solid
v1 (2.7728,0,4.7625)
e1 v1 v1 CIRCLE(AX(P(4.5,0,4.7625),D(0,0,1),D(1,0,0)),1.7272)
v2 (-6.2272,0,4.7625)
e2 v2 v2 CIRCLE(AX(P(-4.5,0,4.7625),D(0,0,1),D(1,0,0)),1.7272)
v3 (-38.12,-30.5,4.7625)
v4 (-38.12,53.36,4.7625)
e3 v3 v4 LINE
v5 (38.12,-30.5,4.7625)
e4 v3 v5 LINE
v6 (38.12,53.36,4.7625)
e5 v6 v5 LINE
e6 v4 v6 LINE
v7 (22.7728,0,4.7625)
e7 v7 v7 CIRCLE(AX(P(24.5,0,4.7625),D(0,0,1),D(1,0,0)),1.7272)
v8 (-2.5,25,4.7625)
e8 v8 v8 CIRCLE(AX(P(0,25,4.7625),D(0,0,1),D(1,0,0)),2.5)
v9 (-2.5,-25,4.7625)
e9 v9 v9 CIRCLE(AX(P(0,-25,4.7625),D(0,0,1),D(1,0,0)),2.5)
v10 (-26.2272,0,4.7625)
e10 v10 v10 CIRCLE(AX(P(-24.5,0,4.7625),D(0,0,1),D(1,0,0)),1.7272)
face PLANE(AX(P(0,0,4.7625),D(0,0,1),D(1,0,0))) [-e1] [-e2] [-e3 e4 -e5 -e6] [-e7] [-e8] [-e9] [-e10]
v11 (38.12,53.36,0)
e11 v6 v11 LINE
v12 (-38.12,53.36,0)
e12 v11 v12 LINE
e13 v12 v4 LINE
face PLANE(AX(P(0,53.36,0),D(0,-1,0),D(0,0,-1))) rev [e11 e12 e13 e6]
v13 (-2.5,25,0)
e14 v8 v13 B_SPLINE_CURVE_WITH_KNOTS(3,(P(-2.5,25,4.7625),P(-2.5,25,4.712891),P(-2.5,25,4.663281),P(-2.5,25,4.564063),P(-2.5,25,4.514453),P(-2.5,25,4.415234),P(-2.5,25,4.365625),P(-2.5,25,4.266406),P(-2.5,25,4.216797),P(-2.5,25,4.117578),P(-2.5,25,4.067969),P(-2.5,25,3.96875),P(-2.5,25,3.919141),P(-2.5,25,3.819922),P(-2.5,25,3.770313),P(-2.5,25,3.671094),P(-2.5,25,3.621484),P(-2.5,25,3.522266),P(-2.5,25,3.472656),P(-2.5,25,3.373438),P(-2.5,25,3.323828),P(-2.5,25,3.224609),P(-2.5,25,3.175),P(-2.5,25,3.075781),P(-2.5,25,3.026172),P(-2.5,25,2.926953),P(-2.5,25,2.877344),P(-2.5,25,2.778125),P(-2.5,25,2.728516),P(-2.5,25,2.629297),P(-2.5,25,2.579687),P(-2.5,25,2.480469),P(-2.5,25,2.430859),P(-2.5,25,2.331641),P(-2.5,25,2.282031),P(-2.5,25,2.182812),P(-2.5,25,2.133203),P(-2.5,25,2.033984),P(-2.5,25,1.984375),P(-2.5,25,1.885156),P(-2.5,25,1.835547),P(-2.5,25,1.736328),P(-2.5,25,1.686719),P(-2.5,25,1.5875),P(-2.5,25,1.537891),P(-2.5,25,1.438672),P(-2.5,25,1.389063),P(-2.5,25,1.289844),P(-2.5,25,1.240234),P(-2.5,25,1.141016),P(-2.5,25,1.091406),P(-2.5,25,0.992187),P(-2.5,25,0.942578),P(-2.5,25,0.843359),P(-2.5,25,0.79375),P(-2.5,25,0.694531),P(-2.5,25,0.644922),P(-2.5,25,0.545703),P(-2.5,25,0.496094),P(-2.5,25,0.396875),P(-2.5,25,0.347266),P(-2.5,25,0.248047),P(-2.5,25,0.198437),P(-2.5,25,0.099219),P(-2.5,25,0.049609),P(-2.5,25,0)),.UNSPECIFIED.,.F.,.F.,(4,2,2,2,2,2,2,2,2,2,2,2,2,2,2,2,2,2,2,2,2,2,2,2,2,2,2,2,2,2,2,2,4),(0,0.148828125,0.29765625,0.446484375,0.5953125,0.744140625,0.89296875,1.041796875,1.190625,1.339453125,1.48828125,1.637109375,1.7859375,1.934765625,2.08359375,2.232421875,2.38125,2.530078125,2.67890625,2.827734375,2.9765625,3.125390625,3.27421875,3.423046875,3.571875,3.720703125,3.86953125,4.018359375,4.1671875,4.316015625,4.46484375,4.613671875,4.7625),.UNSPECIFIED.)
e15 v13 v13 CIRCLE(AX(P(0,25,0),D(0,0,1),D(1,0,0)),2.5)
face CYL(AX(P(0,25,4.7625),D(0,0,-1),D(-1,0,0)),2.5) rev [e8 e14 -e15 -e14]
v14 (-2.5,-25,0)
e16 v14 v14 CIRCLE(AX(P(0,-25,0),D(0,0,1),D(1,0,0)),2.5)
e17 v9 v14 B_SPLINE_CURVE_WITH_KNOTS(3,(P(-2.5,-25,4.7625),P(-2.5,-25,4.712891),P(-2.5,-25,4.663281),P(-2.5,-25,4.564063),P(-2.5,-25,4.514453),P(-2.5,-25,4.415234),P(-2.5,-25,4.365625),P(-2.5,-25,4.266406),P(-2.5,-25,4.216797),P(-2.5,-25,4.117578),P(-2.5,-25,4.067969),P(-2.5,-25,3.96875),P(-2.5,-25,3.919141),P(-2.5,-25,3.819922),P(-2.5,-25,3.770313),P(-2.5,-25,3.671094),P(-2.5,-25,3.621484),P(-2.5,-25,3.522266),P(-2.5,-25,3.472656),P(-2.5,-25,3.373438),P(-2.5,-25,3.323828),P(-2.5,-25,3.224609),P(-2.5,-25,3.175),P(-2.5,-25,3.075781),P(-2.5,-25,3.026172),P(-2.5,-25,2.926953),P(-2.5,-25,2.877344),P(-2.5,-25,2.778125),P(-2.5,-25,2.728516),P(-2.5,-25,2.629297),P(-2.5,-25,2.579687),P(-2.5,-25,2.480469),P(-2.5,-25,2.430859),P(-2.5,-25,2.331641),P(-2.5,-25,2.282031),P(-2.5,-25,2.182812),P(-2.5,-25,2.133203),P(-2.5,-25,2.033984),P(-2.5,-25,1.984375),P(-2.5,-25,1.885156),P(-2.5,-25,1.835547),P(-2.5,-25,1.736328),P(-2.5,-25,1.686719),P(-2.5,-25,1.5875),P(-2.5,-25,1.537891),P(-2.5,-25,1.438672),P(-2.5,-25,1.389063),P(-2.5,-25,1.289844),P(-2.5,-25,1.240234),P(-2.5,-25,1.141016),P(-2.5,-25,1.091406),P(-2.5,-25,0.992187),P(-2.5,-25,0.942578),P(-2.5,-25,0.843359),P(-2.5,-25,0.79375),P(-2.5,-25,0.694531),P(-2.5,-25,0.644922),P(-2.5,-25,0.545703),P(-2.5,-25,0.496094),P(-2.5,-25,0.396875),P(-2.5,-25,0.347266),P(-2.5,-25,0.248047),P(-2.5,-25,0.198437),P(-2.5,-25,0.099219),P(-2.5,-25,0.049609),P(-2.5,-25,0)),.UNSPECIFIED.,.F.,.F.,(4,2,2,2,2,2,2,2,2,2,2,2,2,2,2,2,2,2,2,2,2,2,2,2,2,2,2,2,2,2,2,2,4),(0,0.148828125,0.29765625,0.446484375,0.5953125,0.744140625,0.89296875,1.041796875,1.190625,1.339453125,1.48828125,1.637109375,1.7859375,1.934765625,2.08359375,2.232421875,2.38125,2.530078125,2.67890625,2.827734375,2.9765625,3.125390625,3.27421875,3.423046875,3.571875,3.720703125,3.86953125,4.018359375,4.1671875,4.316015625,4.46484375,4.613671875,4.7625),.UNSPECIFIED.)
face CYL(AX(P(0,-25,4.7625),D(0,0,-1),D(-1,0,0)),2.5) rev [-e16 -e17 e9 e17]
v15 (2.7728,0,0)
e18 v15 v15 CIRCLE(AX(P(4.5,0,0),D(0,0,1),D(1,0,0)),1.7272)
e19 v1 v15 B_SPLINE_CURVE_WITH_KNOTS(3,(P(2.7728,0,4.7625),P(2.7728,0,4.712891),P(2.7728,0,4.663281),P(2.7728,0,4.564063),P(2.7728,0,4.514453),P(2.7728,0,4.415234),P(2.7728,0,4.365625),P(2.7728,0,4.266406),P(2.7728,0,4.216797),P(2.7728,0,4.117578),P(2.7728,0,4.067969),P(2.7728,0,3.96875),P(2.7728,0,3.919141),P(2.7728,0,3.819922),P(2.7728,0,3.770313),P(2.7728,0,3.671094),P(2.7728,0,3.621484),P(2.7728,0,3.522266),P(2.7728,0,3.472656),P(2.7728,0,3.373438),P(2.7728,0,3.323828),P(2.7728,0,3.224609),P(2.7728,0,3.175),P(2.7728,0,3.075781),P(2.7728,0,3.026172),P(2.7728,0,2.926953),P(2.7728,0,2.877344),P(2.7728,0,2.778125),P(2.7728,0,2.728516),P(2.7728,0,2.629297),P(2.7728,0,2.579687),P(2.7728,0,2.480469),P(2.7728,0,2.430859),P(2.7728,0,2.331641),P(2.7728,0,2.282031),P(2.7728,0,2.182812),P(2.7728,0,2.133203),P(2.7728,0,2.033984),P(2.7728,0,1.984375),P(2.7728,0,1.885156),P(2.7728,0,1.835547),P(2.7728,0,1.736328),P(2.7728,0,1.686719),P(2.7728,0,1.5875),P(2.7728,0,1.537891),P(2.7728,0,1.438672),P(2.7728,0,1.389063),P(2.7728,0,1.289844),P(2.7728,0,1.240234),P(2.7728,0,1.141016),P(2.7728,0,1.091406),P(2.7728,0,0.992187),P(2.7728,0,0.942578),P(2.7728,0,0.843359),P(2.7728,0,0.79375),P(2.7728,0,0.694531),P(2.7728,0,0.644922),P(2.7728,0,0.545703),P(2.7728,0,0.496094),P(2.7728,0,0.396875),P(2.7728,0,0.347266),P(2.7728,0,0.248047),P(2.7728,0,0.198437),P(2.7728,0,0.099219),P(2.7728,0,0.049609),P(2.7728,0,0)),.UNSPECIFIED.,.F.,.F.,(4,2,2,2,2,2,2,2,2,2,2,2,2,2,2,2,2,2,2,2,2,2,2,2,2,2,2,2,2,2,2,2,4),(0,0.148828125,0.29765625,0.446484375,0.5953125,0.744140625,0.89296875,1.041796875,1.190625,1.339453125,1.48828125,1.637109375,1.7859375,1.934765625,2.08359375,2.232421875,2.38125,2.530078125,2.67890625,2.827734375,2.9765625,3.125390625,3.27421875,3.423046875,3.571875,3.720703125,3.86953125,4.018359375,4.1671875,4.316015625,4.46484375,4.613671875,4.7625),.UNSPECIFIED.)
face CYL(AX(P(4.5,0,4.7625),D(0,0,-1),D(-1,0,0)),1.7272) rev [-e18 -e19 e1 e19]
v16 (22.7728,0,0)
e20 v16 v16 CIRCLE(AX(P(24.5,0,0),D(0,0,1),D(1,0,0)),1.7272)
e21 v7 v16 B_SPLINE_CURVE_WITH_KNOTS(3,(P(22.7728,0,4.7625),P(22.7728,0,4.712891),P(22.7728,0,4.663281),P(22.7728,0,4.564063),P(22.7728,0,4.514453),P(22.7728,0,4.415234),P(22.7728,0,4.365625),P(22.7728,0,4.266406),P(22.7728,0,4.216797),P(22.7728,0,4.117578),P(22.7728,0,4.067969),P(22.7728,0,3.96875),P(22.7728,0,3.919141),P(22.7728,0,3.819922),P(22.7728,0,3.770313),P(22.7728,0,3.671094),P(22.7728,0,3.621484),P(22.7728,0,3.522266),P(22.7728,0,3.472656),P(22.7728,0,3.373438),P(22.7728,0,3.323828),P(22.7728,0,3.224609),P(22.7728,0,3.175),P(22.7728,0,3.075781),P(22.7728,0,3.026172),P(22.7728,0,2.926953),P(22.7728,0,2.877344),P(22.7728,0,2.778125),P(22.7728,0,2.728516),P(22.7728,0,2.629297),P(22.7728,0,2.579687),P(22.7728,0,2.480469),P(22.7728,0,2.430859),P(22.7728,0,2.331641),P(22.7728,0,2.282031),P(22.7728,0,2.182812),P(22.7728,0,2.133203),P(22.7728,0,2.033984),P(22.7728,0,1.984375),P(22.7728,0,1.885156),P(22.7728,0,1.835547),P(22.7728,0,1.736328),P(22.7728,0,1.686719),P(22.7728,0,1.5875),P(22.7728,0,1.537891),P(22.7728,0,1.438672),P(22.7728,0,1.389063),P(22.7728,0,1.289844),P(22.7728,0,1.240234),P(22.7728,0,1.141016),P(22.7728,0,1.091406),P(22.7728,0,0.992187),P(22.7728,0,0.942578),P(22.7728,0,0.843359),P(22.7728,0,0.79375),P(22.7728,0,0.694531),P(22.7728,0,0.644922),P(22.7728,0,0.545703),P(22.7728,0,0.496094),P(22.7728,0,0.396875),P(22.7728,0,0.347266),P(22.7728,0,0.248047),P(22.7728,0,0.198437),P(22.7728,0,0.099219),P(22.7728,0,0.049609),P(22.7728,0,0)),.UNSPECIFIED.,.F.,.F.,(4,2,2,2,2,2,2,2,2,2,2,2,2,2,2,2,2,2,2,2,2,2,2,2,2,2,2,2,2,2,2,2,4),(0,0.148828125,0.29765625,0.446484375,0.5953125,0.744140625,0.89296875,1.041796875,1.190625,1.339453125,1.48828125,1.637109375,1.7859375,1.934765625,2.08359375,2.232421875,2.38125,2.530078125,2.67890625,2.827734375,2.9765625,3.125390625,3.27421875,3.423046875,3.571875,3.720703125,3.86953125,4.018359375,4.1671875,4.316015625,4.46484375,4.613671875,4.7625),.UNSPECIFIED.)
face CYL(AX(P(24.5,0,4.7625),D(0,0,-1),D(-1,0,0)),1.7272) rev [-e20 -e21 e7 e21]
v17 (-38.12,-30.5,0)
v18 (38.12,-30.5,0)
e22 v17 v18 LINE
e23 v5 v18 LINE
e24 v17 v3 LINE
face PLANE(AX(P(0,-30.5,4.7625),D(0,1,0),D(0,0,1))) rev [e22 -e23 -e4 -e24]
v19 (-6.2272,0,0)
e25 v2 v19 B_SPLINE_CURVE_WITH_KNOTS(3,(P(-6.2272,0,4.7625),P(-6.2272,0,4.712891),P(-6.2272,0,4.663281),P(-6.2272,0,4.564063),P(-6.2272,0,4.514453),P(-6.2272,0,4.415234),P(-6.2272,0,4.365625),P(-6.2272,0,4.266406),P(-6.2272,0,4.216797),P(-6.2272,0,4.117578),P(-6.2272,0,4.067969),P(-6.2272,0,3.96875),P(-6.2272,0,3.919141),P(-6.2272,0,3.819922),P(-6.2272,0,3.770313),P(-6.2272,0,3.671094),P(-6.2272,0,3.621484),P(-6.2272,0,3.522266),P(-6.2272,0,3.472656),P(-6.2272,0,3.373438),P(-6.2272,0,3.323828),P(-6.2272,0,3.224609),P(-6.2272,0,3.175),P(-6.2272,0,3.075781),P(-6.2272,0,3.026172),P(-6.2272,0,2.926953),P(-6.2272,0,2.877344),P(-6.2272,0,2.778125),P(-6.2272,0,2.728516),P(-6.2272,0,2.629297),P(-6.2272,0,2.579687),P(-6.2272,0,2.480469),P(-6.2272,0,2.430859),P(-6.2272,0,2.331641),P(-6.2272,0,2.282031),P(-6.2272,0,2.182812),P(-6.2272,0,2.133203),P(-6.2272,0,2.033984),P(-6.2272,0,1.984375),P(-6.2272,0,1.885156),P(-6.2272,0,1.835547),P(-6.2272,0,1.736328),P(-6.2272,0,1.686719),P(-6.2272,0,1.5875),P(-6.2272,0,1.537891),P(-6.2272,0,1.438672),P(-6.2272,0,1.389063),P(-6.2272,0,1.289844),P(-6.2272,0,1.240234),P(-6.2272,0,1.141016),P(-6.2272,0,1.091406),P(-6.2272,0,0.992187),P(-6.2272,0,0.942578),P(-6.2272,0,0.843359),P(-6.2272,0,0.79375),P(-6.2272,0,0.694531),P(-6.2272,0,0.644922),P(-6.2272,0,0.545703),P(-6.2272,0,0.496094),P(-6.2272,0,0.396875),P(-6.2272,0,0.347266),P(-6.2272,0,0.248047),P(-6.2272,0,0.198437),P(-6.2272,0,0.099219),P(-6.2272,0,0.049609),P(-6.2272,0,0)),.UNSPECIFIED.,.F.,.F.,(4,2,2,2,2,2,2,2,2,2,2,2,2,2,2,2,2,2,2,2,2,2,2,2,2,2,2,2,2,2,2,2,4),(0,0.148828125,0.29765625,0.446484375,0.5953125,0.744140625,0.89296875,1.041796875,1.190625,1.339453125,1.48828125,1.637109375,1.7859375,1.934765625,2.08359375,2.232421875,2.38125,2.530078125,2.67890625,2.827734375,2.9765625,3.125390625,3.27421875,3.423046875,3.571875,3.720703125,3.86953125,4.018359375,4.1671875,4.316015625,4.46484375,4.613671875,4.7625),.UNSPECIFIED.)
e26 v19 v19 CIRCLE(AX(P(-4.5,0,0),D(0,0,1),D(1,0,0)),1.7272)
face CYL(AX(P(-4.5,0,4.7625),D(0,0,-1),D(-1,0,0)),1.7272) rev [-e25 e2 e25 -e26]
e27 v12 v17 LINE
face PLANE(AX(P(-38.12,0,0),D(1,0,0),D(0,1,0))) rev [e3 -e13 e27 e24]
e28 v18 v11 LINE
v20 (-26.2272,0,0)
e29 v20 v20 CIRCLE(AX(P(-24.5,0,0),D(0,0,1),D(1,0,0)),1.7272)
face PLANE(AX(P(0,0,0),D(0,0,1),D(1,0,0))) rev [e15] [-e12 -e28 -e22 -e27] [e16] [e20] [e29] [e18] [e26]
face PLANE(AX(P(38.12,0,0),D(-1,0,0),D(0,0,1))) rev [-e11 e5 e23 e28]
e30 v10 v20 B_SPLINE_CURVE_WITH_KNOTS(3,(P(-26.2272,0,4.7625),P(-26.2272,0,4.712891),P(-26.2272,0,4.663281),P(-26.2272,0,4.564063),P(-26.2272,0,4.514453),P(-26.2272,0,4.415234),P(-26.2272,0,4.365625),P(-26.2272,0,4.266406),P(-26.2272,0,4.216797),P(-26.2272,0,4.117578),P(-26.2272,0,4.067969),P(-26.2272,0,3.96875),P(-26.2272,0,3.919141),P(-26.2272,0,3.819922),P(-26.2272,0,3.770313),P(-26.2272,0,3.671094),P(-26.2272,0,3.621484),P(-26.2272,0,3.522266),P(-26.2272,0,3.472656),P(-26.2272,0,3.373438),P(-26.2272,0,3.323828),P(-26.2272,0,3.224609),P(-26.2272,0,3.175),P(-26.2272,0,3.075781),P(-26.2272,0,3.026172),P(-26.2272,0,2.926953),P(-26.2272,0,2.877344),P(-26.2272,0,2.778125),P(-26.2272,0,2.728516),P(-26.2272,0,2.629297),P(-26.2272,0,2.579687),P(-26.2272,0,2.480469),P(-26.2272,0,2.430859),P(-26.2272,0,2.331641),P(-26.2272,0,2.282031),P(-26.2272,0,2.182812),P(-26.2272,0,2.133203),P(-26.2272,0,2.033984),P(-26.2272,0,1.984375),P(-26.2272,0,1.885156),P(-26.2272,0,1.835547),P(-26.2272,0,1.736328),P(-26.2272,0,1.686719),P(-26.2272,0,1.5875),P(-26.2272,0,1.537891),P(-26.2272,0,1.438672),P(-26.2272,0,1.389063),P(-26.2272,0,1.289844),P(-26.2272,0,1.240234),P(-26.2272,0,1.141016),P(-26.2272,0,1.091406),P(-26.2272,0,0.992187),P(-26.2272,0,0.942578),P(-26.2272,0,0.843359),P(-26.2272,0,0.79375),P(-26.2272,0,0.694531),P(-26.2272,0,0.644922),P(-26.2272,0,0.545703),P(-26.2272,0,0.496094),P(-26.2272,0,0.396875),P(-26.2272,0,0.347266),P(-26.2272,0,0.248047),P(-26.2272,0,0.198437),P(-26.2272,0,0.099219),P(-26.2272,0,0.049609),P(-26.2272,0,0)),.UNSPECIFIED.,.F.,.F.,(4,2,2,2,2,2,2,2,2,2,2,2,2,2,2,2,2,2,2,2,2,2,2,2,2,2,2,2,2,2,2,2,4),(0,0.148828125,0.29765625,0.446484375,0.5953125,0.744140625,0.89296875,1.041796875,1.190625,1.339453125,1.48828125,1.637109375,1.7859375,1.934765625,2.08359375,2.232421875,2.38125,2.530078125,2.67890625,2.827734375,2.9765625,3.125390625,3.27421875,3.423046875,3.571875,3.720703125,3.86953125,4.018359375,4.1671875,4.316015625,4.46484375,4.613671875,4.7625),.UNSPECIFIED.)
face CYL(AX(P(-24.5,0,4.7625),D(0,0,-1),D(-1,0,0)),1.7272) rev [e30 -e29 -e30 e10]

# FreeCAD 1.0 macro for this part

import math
import FreeCAD as App
import Part
import Sketcher
from FreeCAD import Vector
Q = App.Units.Quantity

doc = App.newDocument("Part")
body = doc.addObject("PartDesign::Body", "Body")

# Sketch on XY plane
sketch1 = body.newObject("Sketcher::SketchObject", "Sketch")
sketch1.AttachmentSupport = (doc.getObject("XY_Plane"), [""])
sketch1.MapMode = "FlatFace"
sketch1.addGeometry([
    Part.LineSegment(Vector(30.5, -30.5, 0), Vector(30.5, 30.5, 0)),  # 0
    Part.LineSegment(Vector(30.5, 30.5, 0), Vector(-30.5, 30.5, 0)),  # 1
    Part.LineSegment(Vector(-30.5, 30.5, 0), Vector(-30.5, -30.5, 0)),  # 2
    Part.LineSegment(Vector(-30.5, -30.5, 0), Vector(30.5, -30.5, 0)),  # 3
    Part.ArcOfCircle(Part.Circle(Vector(0, -25, 0), Vector(0, 0, 1), 2.5), math.radians(90), math.radians(270)),  # 4
    Part.ArcOfCircle(Part.Circle(Vector(0, -25, 0), Vector(0, 0, 1), 2.5), math.radians(0), math.radians(90)),  # 5
    Part.ArcOfCircle(Part.Circle(Vector(0, -25, 0), Vector(0, 0, 1), 2.5), math.radians(-90), math.radians(0)),  # 6
    Part.Circle(Vector(-24.5, 0, 0), Vector(0, 0, 1), 1.7272),  # 7
    Part.ArcOfCircle(Part.Circle(Vector(-4.5, 0, 0), Vector(0, 0, 1), 1.7272), math.radians(109.621413), math.radians(180)),  # 8
    Part.ArcOfCircle(Part.Circle(Vector(-4.5, 0, 0), Vector(0, 0, 1), 1.7272), math.radians(0), math.radians(109.621413)),  # 9
    Part.ArcOfCircle(Part.Circle(Vector(-4.5, 0, 0), Vector(0, 0, 1), 1.7272), math.radians(-109.621413), math.radians(0)),  # 10
    Part.ArcOfCircle(Part.Circle(Vector(-4.5, 0, 0), Vector(0, 0, 1), 1.7272), math.radians(180), math.radians(250.378587)),  # 11
    Part.ArcOfCircle(Part.Circle(Vector(0, 25, 0), Vector(0, 0, 1), 2.5), math.radians(90), math.radians(270)),  # 12
    Part.ArcOfCircle(Part.Circle(Vector(0, 25, 0), Vector(0, 0, 1), 2.5), math.radians(0), math.radians(90)),  # 13
    Part.ArcOfCircle(Part.Circle(Vector(0, 25, 0), Vector(0, 0, 1), 2.5), math.radians(-90), math.radians(0)),  # 14
    Part.ArcOfCircle(Part.Circle(Vector(4.5, 0, 0), Vector(0, 0, 1), 1.7272), math.radians(70.378587), math.radians(180)),  # 15
    Part.ArcOfCircle(Part.Circle(Vector(4.5, 0, 0), Vector(0, 0, 1), 1.7272), math.radians(0), math.radians(70.378587)),  # 16
    Part.ArcOfCircle(Part.Circle(Vector(4.5, 0, 0), Vector(0, 0, 1), 1.7272), math.radians(-70.378587), math.radians(0)),  # 17
    Part.ArcOfCircle(Part.Circle(Vector(4.5, 0, 0), Vector(0, 0, 1), 1.7272), math.radians(180), math.radians(289.621413)),  # 18
    Part.Circle(Vector(24.5, 0, 0), Vector(0, 0, 1), 1.7272),  # 19
], False)
sketch1.addConstraint([
    Sketcher.Constraint("Coincident", 0, 2, 1, 1),
    Sketcher.Constraint("Coincident", 1, 2, 2, 1),
    Sketcher.Constraint("Coincident", 2, 2, 3, 1),
    Sketcher.Constraint("Coincident", 3, 2, 0, 1),
    Sketcher.Constraint("Tangent", 4, 1, 5, 2),
    Sketcher.Constraint("Tangent", 5, 1, 6, 2),
    Sketcher.Constraint("Tangent", 6, 1, 4, 2),
    Sketcher.Constraint("Tangent", 8, 1, 9, 2),
    Sketcher.Constraint("Tangent", 9, 1, 10, 2),
    Sketcher.Constraint("Tangent", 10, 1, 11, 2),
    Sketcher.Constraint("Tangent", 11, 1, 8, 2),
    Sketcher.Constraint("Tangent", 12, 1, 13, 2),
    Sketcher.Constraint("Tangent", 13, 1, 14, 2),
    Sketcher.Constraint("Tangent", 14, 1, 12, 2),
    Sketcher.Constraint("Tangent", 15, 1, 16, 2),
    Sketcher.Constraint("Tangent", 16, 1, 17, 2),
    Sketcher.Constraint("Tangent", 17, 1, 18, 2),
    Sketcher.Constraint("Tangent", 18, 1, 15, 2),
    Sketcher.Constraint("Vertical", 0),
    Sketcher.Constraint("Horizontal", 1),
    Sketcher.Constraint("Vertical", 2),
    Sketcher.Constraint("Horizontal", 3),
    Sketcher.Constraint("Equal", 7, 8),
    Sketcher.Constraint("Equal", 8, 9),
    Sketcher.Constraint("Equal", 6, 12),
    Sketcher.Constraint("Equal", 11, 15),
    Sketcher.Constraint("Equal", 15, 16),
    Sketcher.Constraint("Equal", 18, 19),
    Sketcher.Constraint("Symmetric", 4, 3, 12, 3, -1, 1),
    Sketcher.Constraint("Symmetric", 8, 3, 15, 3, -1, 1),
    Sketcher.Constraint("Symmetric", 7, 3, 19, 3, -1, 1),
    Sketcher.Constraint("Symmetric", 0, 2, 2, 2, -1, 1),
    Sketcher.Constraint("Symmetric", 8, 1, 15, 1, -2),
    Sketcher.Constraint("Symmetric", 5, 1, 13, 1, -1),
    Sketcher.Constraint("PointOnObject", 7, 3, -1),
    Sketcher.Constraint("PointOnObject", 4, 1, -2),
    Sketcher.Constraint("PointOnObject", 6, 1, -2),
    Sketcher.Constraint("PointOnObject", 9, 1, -1),
    Sketcher.Constraint("PointOnObject", 11, 1, -1),
    Sketcher.Constraint("PointOnObject", 12, 1, -2),
    Sketcher.Constraint("PointOnObject", 14, 1, -2),
    Sketcher.Constraint("PointOnObject", 16, 1, -1),
    Sketcher.Constraint("PointOnObject", 18, 1, -1),
    Sketcher.Constraint("Horizontal", 6, 3, 5, 1),
    Sketcher.Constraint("Horizontal", 10, 1, 17, 1),
    Sketcher.Constraint("Vertical", 8, 1, 10, 1),
    Sketcher.Constraint("Equal", 3, 0),
    Sketcher.Constraint("Diameter", 7, Q("0.136 in")),
    Sketcher.Constraint("DistanceX", 8, 1, -1, 1, Q("0.2 in")),
    Sketcher.Constraint("Radius", 4, Q("2.5 mm")),
    Sketcher.Constraint("DistanceX", 1, 2, 1, 1, Q("61 mm")),
    Sketcher.Constraint("DistanceY", 4, 3, -1, 1, Q("25 mm")),
    Sketcher.Constraint("DistanceX", 7, 3, -1, 1, Q("24.5 mm")),
    Sketcher.Constraint("DistanceX", 8, 3, -1, 1, Q("4.5 mm")),
])
pad1 = body.newObject("PartDesign::Pad", "Pad")
pad1.Profile = sketch1
pad1.Length = Q("0.1875 in")

# Sketch on YZ plane
sketch2 = body.newObject("Sketcher::SketchObject", "Sketch001")
sketch2.AttachmentSupport = (doc.getObject("YZ_Plane"), [""])
sketch2.MapMode = "FlatFace"
sketch2.AttachmentOffset = App.Placement(Vector(0, 0, -30.5), App.Rotation())
sketch2.addGeometry([
    Part.LineSegment(Vector(30.5, 0, 0), Vector(-30.5, 0, 0)),
    Part.LineSegment(Vector(-30.5, 0, 0), Vector(-30.5, 4.7625, 0)),
    Part.LineSegment(Vector(-30.5, 4.7625, 0), Vector(30.5, 4.7625, 0)),
    Part.LineSegment(Vector(30.5, 4.7625, 0), Vector(30.5, 0, 0)),
], False)
sketch2.addConstraint([
    Sketcher.Constraint("Coincident", 0, 2, 1, 1),
    Sketcher.Constraint("Coincident", 1, 2, 2, 1),
    Sketcher.Constraint("Coincident", 2, 2, 3, 1),
    Sketcher.Constraint("Coincident", 3, 2, 0, 1),
    Sketcher.Constraint("Horizontal", 0),
    Sketcher.Constraint("Vertical", 1),
    Sketcher.Constraint("Horizontal", 2),
    Sketcher.Constraint("Vertical", 3),
    Sketcher.Constraint("Symmetric", 0, 2, 3, 2, -1, 1),
    Sketcher.Constraint("DistanceY", 1, 1, 1, 2, Q("0.1875 in")),
    Sketcher.Constraint("DistanceX", 0, 2, 0, 1, Q("61 mm")),
])
pad2 = body.newObject("PartDesign::Pad", "Pad001")
pad2.Profile = sketch2
pad2.Length = Q("0.3 in")
pad2.Reversed = True

# Sketch on YZ plane
sketch3 = body.newObject("Sketcher::SketchObject", "Sketch002")
sketch3.AttachmentSupport = (doc.getObject("YZ_Plane"), [""])
sketch3.MapMode = "FlatFace"
sketch3.AttachmentOffset = App.Placement(Vector(0, 0, 30.5), App.Rotation())
sketch3.addGeometry([
    Part.LineSegment(Vector(30.5, 4.7625, 0), Vector(-30.5, 4.7625, 0)),
    Part.LineSegment(Vector(-30.5, 4.7625, 0), Vector(-30.5, 0, 0)),
    Part.LineSegment(Vector(-30.5, 0, 0), Vector(30.5, 0, 0)),
    Part.LineSegment(Vector(30.5, 0, 0), Vector(30.5, 4.7625, 0)),
], False)
sketch3.addConstraint([
    Sketcher.Constraint("Coincident", 0, 2, 1, 1),
    Sketcher.Constraint("Coincident", 1, 2, 2, 1),
    Sketcher.Constraint("Coincident", 2, 2, 3, 1),
    Sketcher.Constraint("Coincident", 3, 2, 0, 1),
    Sketcher.Constraint("Horizontal", 0),
    Sketcher.Constraint("Vertical", 1),
    Sketcher.Constraint("Horizontal", 2),
    Sketcher.Constraint("Vertical", 3),
    Sketcher.Constraint("Symmetric", 1, 2, 2, 2, -1, 1),
    Sketcher.Constraint("DistanceY", 1, 2, 1, 1, Q("0.1875 in")),
    Sketcher.Constraint("DistanceX", 0, 2, 0, 1, Q("61 mm")),
])
pad3 = body.newObject("PartDesign::Pad", "Pad002")
pad3.Profile = sketch3
pad3.Length = Q("0.3 in")

# Sketch on XZ plane
sketch4 = body.newObject("Sketcher::SketchObject", "Sketch003")
sketch4.AttachmentSupport = (doc.getObject("XZ_Plane"), [""])
sketch4.MapMode = "FlatFace"
sketch4.AttachmentOffset = App.Placement(Vector(0, 0, -30.5), App.Rotation())
sketch4.addGeometry([
    Part.LineSegment(Vector(-38.12, 0, 0), Vector(-38.12, 4.7625, 0)),
    Part.LineSegment(Vector(-38.12, 4.7625, 0), Vector(38.12, 4.7625, 0)),
    Part.LineSegment(Vector(38.12, 4.7625, 0), Vector(38.12, 0, 0)),
    Part.LineSegment(Vector(38.12, 0, 0), Vector(-38.12, 0, 0)),
], False)
sketch4.addConstraint([
    Sketcher.Constraint("Coincident", 0, 2, 1, 1),
    Sketcher.Constraint("Coincident", 1, 2, 2, 1),
    Sketcher.Constraint("Coincident", 2, 2, 3, 1),
    Sketcher.Constraint("Coincident", 3, 2, 0, 1),
    Sketcher.Constraint("Vertical", 0),
    Sketcher.Constraint("Horizontal", 1),
    Sketcher.Constraint("Vertical", 2),
    Sketcher.Constraint("Horizontal", 3),
    Sketcher.Constraint("Symmetric", 2, 2, 3, 2, -1, 1),
    Sketcher.Constraint("DistanceY", 0, 1, 0, 2, Q("0.1875 in")),
    Sketcher.Constraint("DistanceX", 1, 1, 1, 2, Q("76.24 mm")),
])
pad4 = body.newObject("PartDesign::Pad", "Pad003")
pad4.Profile = sketch4
pad4.Length = Q("0.9 in")
pad4.Reversed = True

doc.recompute()
